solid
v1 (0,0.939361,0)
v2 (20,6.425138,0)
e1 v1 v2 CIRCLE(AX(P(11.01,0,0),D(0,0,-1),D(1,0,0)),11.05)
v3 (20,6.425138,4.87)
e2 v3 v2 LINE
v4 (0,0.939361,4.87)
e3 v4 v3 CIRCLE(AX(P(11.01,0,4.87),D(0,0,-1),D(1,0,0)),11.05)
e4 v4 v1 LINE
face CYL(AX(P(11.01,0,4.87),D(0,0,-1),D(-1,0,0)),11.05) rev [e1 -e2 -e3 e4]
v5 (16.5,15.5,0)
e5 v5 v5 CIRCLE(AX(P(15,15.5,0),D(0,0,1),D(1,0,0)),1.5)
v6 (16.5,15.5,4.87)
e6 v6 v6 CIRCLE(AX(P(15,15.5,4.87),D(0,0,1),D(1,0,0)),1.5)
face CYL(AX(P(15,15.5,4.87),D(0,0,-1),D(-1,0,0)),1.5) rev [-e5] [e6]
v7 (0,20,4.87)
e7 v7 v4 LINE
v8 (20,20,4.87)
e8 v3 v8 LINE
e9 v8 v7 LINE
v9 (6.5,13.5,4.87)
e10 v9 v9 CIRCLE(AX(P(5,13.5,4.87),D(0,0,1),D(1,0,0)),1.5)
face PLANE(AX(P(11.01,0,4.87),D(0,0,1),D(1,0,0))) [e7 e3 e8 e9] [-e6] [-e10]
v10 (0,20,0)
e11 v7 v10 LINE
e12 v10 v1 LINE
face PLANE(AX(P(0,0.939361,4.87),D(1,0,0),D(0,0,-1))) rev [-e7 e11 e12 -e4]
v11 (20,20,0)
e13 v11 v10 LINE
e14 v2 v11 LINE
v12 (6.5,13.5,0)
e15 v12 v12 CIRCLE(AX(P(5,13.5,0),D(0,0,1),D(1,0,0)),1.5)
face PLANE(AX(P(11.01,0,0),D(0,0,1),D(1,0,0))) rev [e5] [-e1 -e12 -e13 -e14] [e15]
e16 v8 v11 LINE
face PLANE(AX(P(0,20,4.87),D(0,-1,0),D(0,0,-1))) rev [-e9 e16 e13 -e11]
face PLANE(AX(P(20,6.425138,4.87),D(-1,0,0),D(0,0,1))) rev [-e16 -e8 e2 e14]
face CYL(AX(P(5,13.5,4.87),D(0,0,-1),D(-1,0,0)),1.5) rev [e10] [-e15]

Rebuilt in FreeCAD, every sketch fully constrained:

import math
import FreeCAD as App
import Part
import Sketcher
from FreeCAD import Vector

doc = App.newDocument("Part")
body = doc.addObject("PartDesign::Body", "Body")

# Sketch on XY plane
sketch1 = body.newObject("Sketcher::SketchObject", "Sketch")
sketch1.AttachmentSupport = (doc.getObject("XY_Plane"), [""])
sketch1.MapMode = "FlatFace"
sketch1.addGeometry([
    Part.LineSegment(Vector(0, 20, 0), Vector(0, 0.9, 0)),  # 0
    Part.ArcOfCircle(Part.Circle(Vector(11, 0, 0), Vector(0, 0, 1), 11.1), math.radians(36), math.radians(175)),  # 1
    Part.LineSegment(Vector(20, 6.4, 0), Vector(20, 20, 0)),  # 2
    Part.LineSegment(Vector(20, 20, 0), Vector(0, 20, 0)),  # 3
    Part.Circle(Vector(5, 13.5, 0), Vector(0, 0, 1), 1.5),  # 4
    Part.Circle(Vector(15, 15.5, 0), Vector(0, 0, 1), 1.5),  # 5
], False)
sketch1.addConstraint([
    Sketcher.Constraint("Coincident", 0, 2, 1, 2),
    Sketcher.Constraint("Coincident", 1, 1, 2, 1),
    Sketcher.Constraint("Coincident", 2, 2, 3, 1),
    Sketcher.Constraint("Coincident", 3, 2, 0, 1),
    Sketcher.Constraint("Vertical", 0),
    Sketcher.Constraint("Vertical", 2),
    Sketcher.Constraint("Horizontal", 3),
    Sketcher.Constraint("Equal", 4, 5),
    Sketcher.Constraint("PointOnObject", 1, 3, -1),
    Sketcher.Constraint("PointOnObject", 0, 2, -2),
    Sketcher.Constraint("Diameter", 4, 3.0),
    Sketcher.Constraint("DistanceX", 3, 2, 3, 1, 20.0),
    Sketcher.Constraint("Radius", 1, 11.05),
    Sketcher.Constraint("DistanceX", -1, 1, 4, 3, 5.0),
    Sketcher.Constraint("DistanceX", -1, 1, 5, 3, 15.0),
    Sketcher.Constraint("DistanceY", -1, 1, 2, 2, 20.0),
    Sketcher.Constraint("DistanceY", 4, 3, 5, 3, 2.0),
    Sketcher.Constraint("DistanceY", -1, 1, 4, 3, 13.5),
    Sketcher.Constraint("DistanceX", -1, 1, 1, 3, 11.01),
])
pad1 = body.newObject("PartDesign::Pad", "Pad")
pad1.Profile = sketch1
pad1.Length = 4.87

doc.recompute()
